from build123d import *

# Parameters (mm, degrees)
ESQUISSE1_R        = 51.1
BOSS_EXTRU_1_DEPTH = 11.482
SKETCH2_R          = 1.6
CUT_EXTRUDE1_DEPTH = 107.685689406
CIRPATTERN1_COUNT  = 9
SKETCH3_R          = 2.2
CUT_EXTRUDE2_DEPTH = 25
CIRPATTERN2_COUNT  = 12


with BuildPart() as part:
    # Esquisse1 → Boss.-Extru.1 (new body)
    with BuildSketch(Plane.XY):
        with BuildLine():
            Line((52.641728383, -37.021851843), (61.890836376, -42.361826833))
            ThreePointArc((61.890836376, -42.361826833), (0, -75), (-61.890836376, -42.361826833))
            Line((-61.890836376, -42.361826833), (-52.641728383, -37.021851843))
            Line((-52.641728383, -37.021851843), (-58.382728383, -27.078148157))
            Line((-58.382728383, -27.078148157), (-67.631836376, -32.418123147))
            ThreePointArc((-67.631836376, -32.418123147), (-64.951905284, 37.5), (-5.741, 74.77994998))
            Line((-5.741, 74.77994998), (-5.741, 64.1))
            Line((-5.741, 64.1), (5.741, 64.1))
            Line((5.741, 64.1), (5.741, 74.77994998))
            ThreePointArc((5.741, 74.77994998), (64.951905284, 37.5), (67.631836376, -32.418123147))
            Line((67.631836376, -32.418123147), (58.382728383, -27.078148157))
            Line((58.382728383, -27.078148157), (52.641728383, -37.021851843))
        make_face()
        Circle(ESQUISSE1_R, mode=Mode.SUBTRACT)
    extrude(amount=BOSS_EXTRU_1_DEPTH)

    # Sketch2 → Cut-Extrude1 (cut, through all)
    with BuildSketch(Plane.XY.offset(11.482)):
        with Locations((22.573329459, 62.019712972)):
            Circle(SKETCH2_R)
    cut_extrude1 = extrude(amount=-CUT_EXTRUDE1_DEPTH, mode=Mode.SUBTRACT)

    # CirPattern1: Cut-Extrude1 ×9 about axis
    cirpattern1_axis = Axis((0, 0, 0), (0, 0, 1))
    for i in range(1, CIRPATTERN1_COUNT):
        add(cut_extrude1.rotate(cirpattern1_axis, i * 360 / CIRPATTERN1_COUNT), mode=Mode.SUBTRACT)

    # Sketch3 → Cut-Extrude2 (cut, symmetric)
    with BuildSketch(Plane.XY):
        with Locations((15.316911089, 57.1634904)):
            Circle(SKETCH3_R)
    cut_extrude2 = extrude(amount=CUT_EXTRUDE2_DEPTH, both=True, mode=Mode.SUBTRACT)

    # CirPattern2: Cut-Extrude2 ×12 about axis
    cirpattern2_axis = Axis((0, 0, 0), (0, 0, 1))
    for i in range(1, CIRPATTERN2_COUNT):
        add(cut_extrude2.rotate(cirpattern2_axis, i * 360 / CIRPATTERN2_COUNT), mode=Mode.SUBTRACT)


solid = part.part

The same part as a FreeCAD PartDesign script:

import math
import FreeCAD as App
import Part
import Sketcher
from FreeCAD import Vector
Q = App.Units.Quantity

doc = App.newDocument("Part")
body = doc.addObject("PartDesign::Body", "Body")

sketch1 = body.newObject("Sketcher::SketchObject", "Sketch")
sketch1.AttachmentSupport = (doc.getObject("XY_Plane"), [""])
sketch1.MapMode = "FlatFace"
sketch1.addGeometry([
    Part.LineSegment(Vector(62, -42, 0), Vector(53, -37, 0)),
    Part.LineSegment(Vector(53, -37, 0), Vector(58, -27, 0)),
    Part.LineSegment(Vector(58, -27, 0), Vector(68, -32, 0)),
    Part.ArcOfCircle(Part.Circle(Vector(0, 0, 0), Vector(0, 0, 1), 75), math.radians(-26), math.radians(86)),
    Part.LineSegment(Vector(6, 75, 0), Vector(6, 64, 0)),
    Part.LineSegment(Vector(6, 64, 0), Vector(-6, 64, 0)),
    Part.LineSegment(Vector(-6, 64, 0), Vector(-6, 75, 0)),
    Part.ArcOfCircle(Part.Circle(Vector(0, 0, 0), Vector(0, 0, 1), 75), math.radians(94), math.radians(206)),
    Part.LineSegment(Vector(-68, -32, 0), Vector(-58, -27, 0)),
    Part.LineSegment(Vector(-58, -27, 0), Vector(-53, -37, 0)),
    Part.LineSegment(Vector(-53, -37, 0), Vector(-62, -42, 0)),
    Part.ArcOfCircle(Part.Circle(Vector(0, 0, 0), Vector(0, 0, 1), 75), math.radians(-146), math.radians(-34)),
    Part.Circle(Vector(0, 0, 0), Vector(0, 0, 1), 51),
], False)
sketch1.addConstraint([
    Sketcher.Constraint("Coincident", 0, 2, 1, 1),
    Sketcher.Constraint("Coincident", 1, 2, 2, 1),
    Sketcher.Constraint("Coincident", 2, 2, 3, 1),
    Sketcher.Constraint("Coincident", 3, 2, 4, 1),
    Sketcher.Constraint("Coincident", 4, 2, 5, 1),
    Sketcher.Constraint("Coincident", 5, 2, 6, 1),
    Sketcher.Constraint("Coincident", 6, 2, 7, 1),
    Sketcher.Constraint("Coincident", 7, 2, 8, 1),
    Sketcher.Constraint("Coincident", 8, 2, 9, 1),
    Sketcher.Constraint("Coincident", 9, 2, 10, 1),
    Sketcher.Constraint("Coincident", 10, 2, 11, 1),
    Sketcher.Constraint("Coincident", 11, 2, 0, 1),
    Sketcher.Constraint("Vertical", 4),
    Sketcher.Constraint("Horizontal", 5),
    Sketcher.Constraint("Vertical", 6),
    Sketcher.Constraint("Coincident", 3, 3, -1, 1),
    Sketcher.Constraint("Coincident", 7, 3, -1, 1),
    Sketcher.Constraint("Coincident", 11, 3, -1, 1),
    Sketcher.Constraint("Coincident", 12, 3, -1, 1),
    Sketcher.Constraint("Equal", 3, 7),
    Sketcher.Constraint("Equal", 7, 11),
    Sketcher.Constraint("Symmetric", 1, 2, 8, 2, -2),
    Sketcher.Constraint("Symmetric", 0, 2, 9, 2, -2),
    Sketcher.Constraint("Perpendicular", 0, 1),
    Sketcher.Constraint("Perpendicular", 1, 2),
    Sketcher.Constraint("Perpendicular", 8, 9),
    Sketcher.Constraint("Perpendicular", 9, 10),
    Sketcher.Constraint("Horizontal", 3, 2, 6, 2),
    Sketcher.Constraint("Equal", 0, 2),
    Sketcher.Constraint("Radius", 3, 75.0),
    Sketcher.Constraint("Diameter", 12, 102.2),
    Sketcher.Constraint("Angle", 0, Q("150 deg")),
    Sketcher.Constraint("DistanceY", -1, 1, 4, 2, 64.1),
    Sketcher.Constraint("DistanceX", 5, 2, 5, 1, 11.482),
    Sketcher.Constraint("Distance", 1, 11.482),
    Sketcher.Constraint("DistanceY", 1, 2, 3, 2, 101.858098),
])
pad1 = body.newObject("PartDesign::Pad", "Pad")
pad1.Profile = sketch1
pad1.Length = 11.482

sketch2 = body.newObject("Sketcher::SketchObject", "Sketch001")
sketch2.AttachmentSupport = (doc.getObject("XY_Plane"), [""])
sketch2.MapMode = "FlatFace"
sketch2.AttachmentOffset = App.Placement(Vector(0, 0, 11.482), App.Rotation())
sketch2.addGeometry(Part.Circle(Vector(22.6, 62, 0), Vector(0, 0, 1), 1.6), False)
sketch2.addConstraint([
    Sketcher.Constraint("Diameter", 0, 3.2),
    Sketcher.Constraint("DistanceX", -1, 1, 0, 3, 22.573329),
    Sketcher.Constraint("DistanceY", -1, 1, 0, 3, 62.019713),
])
pocket1 = body.newObject("PartDesign::Pocket", "Pocket")
pocket1.Profile = sketch2
pocket1.Type = "ThroughAll"
doc.recompute()

polarpattern = body.newObject("PartDesign::PolarPattern", "PolarPattern")
polarpattern.Originals = [pocket1]
polarpattern.Axis = (doc.getObject("Z_Axis"), [""])
polarpattern.Angle = 360
polarpattern.Occurrences = 9
body.Tip = polarpattern

sketch3 = body.newObject("Sketcher::SketchObject", "Sketch002")
sketch3.AttachmentSupport = (doc.getObject("XY_Plane"), [""])
sketch3.MapMode = "FlatFace"
sketch3.addGeometry(Part.Circle(Vector(15.3, 57.2, 0), Vector(0, 0, 1), 2.2), False)
sketch3.addConstraint([
    Sketcher.Constraint("Diameter", 0, 4.4),
    Sketcher.Constraint("DistanceX", -1, 1, 0, 3, 15.316911),
    Sketcher.Constraint("DistanceY", -1, 1, 0, 3, 57.16349),
])
pocket2 = body.newObject("PartDesign::Pocket", "Pocket001")
pocket2.Profile = sketch3
pocket2.Length = 50
pocket2.Midplane = True
doc.recompute()

polarpattern2 = body.newObject("PartDesign::PolarPattern", "PolarPattern001")
polarpattern2.Originals = [pocket2]
polarpattern2.Axis = (doc.getObject("Z_Axis"), [""])
polarpattern2.Angle = 360
polarpattern2.Occurrences = 12
body.Tip = polarpattern2

doc.recompute()
